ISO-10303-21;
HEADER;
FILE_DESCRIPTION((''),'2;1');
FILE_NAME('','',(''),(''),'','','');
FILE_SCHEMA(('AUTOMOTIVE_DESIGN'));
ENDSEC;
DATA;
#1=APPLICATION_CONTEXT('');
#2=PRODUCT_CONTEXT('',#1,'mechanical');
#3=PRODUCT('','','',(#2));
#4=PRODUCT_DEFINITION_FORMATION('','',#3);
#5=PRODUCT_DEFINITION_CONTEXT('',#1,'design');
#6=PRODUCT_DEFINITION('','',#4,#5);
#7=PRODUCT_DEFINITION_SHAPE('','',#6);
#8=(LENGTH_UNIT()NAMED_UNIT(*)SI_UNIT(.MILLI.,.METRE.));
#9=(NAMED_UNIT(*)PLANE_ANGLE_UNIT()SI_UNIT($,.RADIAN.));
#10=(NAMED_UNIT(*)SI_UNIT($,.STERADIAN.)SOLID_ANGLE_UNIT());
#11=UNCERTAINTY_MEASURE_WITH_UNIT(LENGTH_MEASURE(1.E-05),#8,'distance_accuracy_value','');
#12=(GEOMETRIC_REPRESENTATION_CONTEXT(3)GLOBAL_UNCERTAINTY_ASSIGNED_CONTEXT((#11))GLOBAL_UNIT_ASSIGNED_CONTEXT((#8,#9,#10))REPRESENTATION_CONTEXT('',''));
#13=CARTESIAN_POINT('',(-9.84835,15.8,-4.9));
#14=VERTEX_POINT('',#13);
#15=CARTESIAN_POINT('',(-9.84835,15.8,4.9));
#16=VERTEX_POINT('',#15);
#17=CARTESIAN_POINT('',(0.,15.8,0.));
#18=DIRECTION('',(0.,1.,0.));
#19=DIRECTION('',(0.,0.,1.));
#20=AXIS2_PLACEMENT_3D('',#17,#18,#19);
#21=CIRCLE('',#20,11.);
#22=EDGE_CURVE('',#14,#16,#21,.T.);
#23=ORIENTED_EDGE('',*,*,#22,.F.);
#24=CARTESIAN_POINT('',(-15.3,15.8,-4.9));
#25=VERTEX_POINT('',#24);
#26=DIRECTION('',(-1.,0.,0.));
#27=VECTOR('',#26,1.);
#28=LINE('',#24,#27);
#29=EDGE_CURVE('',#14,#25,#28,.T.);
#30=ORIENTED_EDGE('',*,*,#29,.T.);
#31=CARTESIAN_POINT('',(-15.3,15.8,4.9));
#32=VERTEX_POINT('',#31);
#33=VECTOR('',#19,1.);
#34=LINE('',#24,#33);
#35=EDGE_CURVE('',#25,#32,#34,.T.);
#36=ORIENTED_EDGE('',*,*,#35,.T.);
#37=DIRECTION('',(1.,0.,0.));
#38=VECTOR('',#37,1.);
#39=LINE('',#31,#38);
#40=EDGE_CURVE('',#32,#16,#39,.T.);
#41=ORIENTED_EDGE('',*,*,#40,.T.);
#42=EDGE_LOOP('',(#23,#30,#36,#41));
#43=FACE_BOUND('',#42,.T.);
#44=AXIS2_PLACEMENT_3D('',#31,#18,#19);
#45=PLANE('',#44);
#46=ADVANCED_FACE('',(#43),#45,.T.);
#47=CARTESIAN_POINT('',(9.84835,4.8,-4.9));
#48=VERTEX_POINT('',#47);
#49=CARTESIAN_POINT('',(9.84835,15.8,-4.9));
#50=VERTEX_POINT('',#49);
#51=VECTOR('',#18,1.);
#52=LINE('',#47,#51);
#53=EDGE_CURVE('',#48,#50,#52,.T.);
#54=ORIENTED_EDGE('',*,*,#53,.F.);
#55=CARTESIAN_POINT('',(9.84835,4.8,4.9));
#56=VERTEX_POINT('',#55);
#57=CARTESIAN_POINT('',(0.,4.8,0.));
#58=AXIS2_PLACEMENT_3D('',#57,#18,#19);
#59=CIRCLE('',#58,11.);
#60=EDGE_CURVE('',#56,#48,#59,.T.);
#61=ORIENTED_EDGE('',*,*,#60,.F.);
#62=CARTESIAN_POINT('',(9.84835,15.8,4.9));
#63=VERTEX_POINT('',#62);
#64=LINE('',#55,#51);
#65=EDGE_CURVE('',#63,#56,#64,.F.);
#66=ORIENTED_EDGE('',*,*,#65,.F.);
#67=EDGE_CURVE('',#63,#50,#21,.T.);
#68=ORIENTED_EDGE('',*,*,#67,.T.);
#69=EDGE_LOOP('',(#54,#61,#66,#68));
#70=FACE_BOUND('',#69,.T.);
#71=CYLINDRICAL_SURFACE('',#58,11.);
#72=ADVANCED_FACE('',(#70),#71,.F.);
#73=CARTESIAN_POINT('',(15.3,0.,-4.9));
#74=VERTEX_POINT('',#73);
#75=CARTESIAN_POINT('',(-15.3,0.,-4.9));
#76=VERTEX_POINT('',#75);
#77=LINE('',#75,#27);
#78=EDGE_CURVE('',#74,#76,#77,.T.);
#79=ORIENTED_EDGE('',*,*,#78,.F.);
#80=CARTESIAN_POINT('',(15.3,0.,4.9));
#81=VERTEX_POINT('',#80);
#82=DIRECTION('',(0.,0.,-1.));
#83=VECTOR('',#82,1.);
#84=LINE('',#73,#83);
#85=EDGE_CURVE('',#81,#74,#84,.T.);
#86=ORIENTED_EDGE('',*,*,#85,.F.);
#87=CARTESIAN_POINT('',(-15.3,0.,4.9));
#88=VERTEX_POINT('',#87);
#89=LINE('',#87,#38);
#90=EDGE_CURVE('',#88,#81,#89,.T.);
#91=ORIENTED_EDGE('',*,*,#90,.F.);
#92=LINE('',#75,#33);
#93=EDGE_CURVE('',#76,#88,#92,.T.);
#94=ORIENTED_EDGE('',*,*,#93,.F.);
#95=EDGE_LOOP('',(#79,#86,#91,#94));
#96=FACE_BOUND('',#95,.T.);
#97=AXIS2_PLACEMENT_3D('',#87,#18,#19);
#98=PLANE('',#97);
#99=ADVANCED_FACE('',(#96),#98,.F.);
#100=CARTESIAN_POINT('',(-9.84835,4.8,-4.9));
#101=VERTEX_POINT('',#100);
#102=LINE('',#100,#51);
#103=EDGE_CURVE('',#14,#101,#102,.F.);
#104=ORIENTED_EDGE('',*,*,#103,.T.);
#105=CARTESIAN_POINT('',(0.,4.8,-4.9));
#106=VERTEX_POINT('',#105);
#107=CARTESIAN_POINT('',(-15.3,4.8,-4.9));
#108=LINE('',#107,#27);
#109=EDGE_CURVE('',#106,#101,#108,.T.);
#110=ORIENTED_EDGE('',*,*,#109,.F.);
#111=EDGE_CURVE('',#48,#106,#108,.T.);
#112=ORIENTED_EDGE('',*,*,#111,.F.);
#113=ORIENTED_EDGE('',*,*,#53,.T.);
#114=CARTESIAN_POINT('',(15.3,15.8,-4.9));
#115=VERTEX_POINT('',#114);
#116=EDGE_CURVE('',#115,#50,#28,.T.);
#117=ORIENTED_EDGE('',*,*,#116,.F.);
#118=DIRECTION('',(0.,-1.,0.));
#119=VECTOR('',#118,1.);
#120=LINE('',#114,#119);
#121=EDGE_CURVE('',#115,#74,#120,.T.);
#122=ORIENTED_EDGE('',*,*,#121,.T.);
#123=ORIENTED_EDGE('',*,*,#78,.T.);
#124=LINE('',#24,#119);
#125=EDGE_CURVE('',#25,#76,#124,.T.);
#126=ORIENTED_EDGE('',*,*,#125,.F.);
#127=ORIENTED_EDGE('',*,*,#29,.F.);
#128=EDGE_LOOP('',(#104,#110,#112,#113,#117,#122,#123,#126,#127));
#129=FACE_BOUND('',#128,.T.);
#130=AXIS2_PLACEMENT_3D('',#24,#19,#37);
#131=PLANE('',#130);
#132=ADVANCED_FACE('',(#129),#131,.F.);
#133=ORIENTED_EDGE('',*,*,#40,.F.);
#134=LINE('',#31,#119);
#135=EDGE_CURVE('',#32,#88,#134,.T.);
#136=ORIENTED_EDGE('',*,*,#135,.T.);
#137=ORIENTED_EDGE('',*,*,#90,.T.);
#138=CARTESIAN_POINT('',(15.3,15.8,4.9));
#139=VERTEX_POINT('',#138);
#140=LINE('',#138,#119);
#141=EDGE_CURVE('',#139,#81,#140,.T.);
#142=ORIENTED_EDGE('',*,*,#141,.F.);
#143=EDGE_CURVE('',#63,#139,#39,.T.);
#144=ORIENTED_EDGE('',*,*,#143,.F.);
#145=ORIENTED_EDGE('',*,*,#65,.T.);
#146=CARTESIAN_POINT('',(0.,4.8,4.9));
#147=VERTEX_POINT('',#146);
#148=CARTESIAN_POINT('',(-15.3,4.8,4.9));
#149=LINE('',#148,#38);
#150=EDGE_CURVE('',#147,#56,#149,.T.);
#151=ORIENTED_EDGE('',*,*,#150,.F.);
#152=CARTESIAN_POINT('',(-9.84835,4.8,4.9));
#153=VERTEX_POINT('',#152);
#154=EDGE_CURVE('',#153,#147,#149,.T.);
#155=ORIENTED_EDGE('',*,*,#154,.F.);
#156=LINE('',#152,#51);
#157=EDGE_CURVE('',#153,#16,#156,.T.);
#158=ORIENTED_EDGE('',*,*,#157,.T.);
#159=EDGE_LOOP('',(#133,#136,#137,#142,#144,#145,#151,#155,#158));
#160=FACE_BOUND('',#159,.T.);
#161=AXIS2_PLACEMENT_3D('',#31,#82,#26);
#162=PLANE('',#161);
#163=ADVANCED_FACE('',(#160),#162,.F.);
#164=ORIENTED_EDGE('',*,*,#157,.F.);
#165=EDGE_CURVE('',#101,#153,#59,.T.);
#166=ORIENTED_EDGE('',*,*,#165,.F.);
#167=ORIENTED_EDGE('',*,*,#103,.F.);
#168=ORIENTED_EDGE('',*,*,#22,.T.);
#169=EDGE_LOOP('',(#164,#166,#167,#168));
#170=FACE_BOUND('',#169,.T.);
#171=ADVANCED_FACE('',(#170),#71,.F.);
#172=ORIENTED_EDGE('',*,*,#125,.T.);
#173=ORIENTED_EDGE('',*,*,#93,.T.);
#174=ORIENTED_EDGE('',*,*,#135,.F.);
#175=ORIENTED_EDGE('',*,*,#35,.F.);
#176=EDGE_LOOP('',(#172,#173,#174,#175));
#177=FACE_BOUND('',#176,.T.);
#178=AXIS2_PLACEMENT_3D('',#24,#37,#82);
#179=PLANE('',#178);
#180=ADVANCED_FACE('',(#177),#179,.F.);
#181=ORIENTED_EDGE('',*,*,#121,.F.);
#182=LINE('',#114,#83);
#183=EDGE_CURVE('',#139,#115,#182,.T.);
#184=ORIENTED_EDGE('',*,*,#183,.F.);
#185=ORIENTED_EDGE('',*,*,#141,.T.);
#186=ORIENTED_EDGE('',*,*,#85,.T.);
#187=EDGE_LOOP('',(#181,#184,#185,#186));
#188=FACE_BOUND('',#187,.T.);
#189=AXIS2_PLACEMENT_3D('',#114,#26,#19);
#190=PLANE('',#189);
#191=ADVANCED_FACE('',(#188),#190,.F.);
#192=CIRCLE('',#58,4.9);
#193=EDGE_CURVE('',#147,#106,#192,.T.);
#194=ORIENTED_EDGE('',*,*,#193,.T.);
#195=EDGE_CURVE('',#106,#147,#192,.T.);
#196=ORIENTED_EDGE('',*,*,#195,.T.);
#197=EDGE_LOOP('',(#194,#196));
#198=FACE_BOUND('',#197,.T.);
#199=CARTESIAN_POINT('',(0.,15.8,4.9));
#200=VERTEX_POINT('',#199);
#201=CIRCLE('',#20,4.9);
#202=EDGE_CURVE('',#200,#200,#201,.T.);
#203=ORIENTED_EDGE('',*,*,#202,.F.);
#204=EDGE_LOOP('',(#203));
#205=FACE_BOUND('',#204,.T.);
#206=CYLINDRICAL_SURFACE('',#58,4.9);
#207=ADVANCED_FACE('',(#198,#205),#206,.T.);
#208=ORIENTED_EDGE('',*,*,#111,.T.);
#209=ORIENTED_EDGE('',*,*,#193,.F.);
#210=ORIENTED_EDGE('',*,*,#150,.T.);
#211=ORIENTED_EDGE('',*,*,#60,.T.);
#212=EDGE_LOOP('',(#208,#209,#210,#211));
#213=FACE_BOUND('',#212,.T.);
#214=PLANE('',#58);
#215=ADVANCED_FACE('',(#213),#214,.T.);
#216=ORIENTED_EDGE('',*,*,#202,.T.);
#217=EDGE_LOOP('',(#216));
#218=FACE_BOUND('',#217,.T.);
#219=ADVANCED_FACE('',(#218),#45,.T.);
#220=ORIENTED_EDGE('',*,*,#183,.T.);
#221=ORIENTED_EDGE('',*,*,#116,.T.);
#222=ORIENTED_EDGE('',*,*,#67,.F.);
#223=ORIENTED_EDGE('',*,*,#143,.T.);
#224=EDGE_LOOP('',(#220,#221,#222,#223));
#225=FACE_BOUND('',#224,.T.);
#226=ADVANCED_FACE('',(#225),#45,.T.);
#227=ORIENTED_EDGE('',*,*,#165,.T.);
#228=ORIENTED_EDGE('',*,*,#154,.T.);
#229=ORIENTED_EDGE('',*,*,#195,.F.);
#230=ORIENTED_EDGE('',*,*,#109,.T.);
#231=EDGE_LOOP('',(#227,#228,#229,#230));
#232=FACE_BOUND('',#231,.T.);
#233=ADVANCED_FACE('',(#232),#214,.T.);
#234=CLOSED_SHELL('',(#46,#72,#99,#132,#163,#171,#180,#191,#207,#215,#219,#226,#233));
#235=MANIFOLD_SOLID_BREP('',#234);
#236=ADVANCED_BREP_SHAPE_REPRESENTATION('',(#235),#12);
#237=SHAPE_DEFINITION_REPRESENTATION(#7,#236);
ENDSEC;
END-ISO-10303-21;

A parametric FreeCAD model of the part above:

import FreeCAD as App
import Part
import Sketcher
from FreeCAD import Vector

doc = App.newDocument("Part")
body = doc.addObject("PartDesign::Body", "Body")

# Sketch on XZ plane
sketch1 = body.newObject("Sketcher::SketchObject", "Sketch")
sketch1.AttachmentSupport = (doc.getObject("XZ_Plane"), [""])
sketch1.MapMode = "FlatFace"
sketch1.addGeometry(Part.LineSegment(Vector(-15, -5, 0), Vector(-15, 5, 0)), False)
sketch1.addGeometry(Part.LineSegment(Vector(-15, 5, 0), Vector(15, 5, 0)), False)
sketch1.addGeometry(Part.LineSegment(Vector(15, 5, 0), Vector(15, -5, 0)), False)
sketch1.addGeometry(Part.LineSegment(Vector(15, -5, 0), Vector(-15, -5, 0)), False)
sketch1.addConstraint(Sketcher.Constraint("Coincident", 0, 2, 1, 1))
sketch1.addConstraint(Sketcher.Constraint("Coincident", 1, 2, 2, 1))
sketch1.addConstraint(Sketcher.Constraint("Coincident", 2, 2, 3, 1))
sketch1.addConstraint(Sketcher.Constraint("Coincident", 3, 2, 0, 1))
sketch1.addConstraint(Sketcher.Constraint("Vertical", 0))
sketch1.addConstraint(Sketcher.Constraint("Horizontal", 1))
sketch1.addConstraint(Sketcher.Constraint("Vertical", 2))
sketch1.addConstraint(Sketcher.Constraint("Horizontal", 3))
sketch1.addConstraint(Sketcher.Constraint("Symmetric", 0, 2, 2, 2, -1, 1))
sketch1.addConstraint(Sketcher.Constraint("DistanceX", 1, 1, 1, 2, 30.6))
sketch1.addConstraint(Sketcher.Constraint("DistanceY", 0, 1, 0, 2, 9.8))
pad1 = body.newObject("PartDesign::Pad", "Pad")
pad1.Profile = sketch1
pad1.Length = 15.8
pad1.Reversed = True

# Sketch on XZ plane
sketch2 = body.newObject("Sketcher::SketchObject", "Sketch001")
sketch2.AttachmentSupport = (doc.getObject("XZ_Plane"), [""])
sketch2.MapMode = "FlatFace"
sketch2.AttachmentOffset = App.Placement(Vector(0, 0, -15.8), App.Rotation())
sketch2.addGeometry(Part.Circle(Vector(0, 0, 0), Vector(0, 0, 1), 11), False)
sketch2.addGeometry(Part.Circle(Vector(0, 0, 0), Vector(0, 0, 1), 4.9), False)
sketch2.addConstraint(Sketcher.Constraint("Coincident", 0, 3, -1, 1))
sketch2.addConstraint(Sketcher.Constraint("Coincident", 1, 3, -1, 1))
sketch2.addConstraint(Sketcher.Constraint("Diameter", 0, 22.0))
sketch2.addConstraint(Sketcher.Constraint("Diameter", 1, 9.8))
pocket1 = body.newObject("PartDesign::Pocket", "Pocket")
pocket1.Profile = sketch2
pocket1.Length = 11
pocket1.Reversed = True

doc.recompute()
